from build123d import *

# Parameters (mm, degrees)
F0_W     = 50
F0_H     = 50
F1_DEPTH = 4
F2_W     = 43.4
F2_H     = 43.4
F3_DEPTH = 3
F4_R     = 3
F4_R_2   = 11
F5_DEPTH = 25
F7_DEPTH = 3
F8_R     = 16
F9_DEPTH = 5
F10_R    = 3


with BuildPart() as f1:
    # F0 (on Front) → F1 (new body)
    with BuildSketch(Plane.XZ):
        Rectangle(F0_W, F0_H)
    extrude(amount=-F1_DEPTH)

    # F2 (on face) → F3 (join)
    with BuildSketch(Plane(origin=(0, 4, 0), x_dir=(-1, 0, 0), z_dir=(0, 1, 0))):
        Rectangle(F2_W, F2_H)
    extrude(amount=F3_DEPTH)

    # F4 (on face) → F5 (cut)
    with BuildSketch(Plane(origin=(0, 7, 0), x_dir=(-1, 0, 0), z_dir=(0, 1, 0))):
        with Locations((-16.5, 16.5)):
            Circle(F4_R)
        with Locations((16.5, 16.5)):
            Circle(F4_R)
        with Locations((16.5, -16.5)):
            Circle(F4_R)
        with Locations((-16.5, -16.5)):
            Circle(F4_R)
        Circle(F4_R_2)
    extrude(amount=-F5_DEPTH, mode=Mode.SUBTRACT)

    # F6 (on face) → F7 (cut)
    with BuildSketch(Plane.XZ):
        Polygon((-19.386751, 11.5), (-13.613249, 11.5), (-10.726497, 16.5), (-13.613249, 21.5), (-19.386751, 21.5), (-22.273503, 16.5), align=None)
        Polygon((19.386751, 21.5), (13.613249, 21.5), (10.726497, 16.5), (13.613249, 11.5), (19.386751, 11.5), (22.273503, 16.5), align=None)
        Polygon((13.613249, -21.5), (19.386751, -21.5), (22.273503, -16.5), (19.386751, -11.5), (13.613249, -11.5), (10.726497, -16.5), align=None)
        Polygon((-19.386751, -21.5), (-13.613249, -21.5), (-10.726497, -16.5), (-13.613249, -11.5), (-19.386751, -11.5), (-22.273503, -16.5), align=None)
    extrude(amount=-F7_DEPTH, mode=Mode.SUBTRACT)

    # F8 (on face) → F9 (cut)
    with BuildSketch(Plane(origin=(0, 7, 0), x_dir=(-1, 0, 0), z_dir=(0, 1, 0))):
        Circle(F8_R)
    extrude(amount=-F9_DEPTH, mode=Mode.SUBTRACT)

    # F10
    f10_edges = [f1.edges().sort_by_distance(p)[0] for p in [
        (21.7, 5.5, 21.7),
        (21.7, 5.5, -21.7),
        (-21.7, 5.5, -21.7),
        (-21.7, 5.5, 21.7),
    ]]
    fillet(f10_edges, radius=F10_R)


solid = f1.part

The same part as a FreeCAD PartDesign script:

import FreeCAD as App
import Part
import Sketcher
Q = App.Units.Quantity


def edges_at(feature, points):
    """Names of the edges that pass closest to the given points."""
    edges = feature.Shape.Edges
    near = lambda p: min(range(len(edges)), key=lambda i: edges[i].distToShape(Part.Vertex(*p))[0])
    return sorted({f"Edge{near(p) + 1}" for p in points})

doc = App.newDocument("Part")
params = doc.addObject("Spreadsheet::Sheet", "Params")
for row, (alias, value) in enumerate([
    ("sketch1_width", "50 mm"),
    ("pad1_length", "4 mm"),
    ("sketch2_width", "43.4 mm"),
    ("pad2_length", "3 mm"),
    ("sketch3_diameter", "6 mm"),
    ("sketch3_diameter2", "22 mm"),
    ("pocket1_length", "25 mm"),
    ("pocket2_length", "3 mm"),
    ("sketch5_diameter", "32 mm"),
    ("pocket3_length", "5 mm"),
    ("fillet_radius", "3 mm"),
], start=1):
    params.set(f"A{row}", alias)
    params.set(f"B{row}", "=" + value)
    params.setAlias(f"B{row}", alias)

body = doc.addObject("PartDesign::Body", "Body")

# Sketch on XZ plane
sketch1 = doc.addObject("Sketcher::SketchObject", "Sketch")
body.addObject(sketch1)
sketch1.AttachmentSupport = (doc.XZ_Plane, [""])
sketch1.MapMode = "FlatFace"
sketch1.addGeometry([
    Part.LineSegment(App.Vector(-25, 25, 0), App.Vector(-25, -25, 0)),
    Part.LineSegment(App.Vector(-25, -25, 0), App.Vector(25, -25, 0)),
    Part.LineSegment(App.Vector(25, -25, 0), App.Vector(25, 25, 0)),
    Part.LineSegment(App.Vector(25, 25, 0), App.Vector(-25, 25, 0)),
], False)
sketch1.addConstraint([
    Sketcher.Constraint("Coincident", 0, 2, 1, 1),
    Sketcher.Constraint("Coincident", 1, 2, 2, 1),
    Sketcher.Constraint("Coincident", 2, 2, 3, 1),
    Sketcher.Constraint("Coincident", 3, 2, 0, 1),
    Sketcher.Constraint("Vertical", 0),
    Sketcher.Constraint("Horizontal", 1),
    Sketcher.Constraint("Vertical", 2),
    Sketcher.Constraint("Horizontal", 3),
    Sketcher.Constraint("Symmetric", 0, 2, 2, 2, -1, 1),
    Sketcher.Constraint("Equal", 3, 0),
    Sketcher.Constraint("DistanceX", 1, 1, 1, 2, Q("50 mm")),
])
sketch1.setExpression("Constraints[10]", "Params.sketch1_width")
pad1 = doc.addObject("PartDesign::Pad", "Pad")
body.addObject(pad1)
pad1.Profile = sketch1
pad1.setExpression("Length", "Params.pad1_length")
pad1.Reversed = True

# Sketch on XZ plane
sketch2 = doc.addObject("Sketcher::SketchObject", "Sketch001")
body.addObject(sketch2)
sketch2.AttachmentSupport = (doc.XZ_Plane, [""])
sketch2.MapMode = "FlatFace"
sketch2.AttachmentOffset = App.Placement(App.Vector(0, 0, -4), App.Rotation())
sketch2.addGeometry([
    Part.LineSegment(App.Vector(22, 22, 0), App.Vector(22, -22, 0)),
    Part.LineSegment(App.Vector(22, -22, 0), App.Vector(-22, -22, 0)),
    Part.LineSegment(App.Vector(-22, -22, 0), App.Vector(-22, 22, 0)),
    Part.LineSegment(App.Vector(-22, 22, 0), App.Vector(22, 22, 0)),
], False)
sketch2.addConstraint([
    Sketcher.Constraint("Coincident", 0, 2, 1, 1),
    Sketcher.Constraint("Coincident", 1, 2, 2, 1),
    Sketcher.Constraint("Coincident", 2, 2, 3, 1),
    Sketcher.Constraint("Coincident", 3, 2, 0, 1),
    Sketcher.Constraint("Vertical", 0),
    Sketcher.Constraint("Horizontal", 1),
    Sketcher.Constraint("Vertical", 2),
    Sketcher.Constraint("Horizontal", 3),
    Sketcher.Constraint("Symmetric", 0, 2, 2, 2, -1, 1),
    Sketcher.Constraint("Equal", 3, 0),
    Sketcher.Constraint("DistanceX", 1, 2, 1, 1, Q("43.4 mm")),
])
sketch2.setExpression("Constraints[10]", "Params.sketch2_width")
pad2 = doc.addObject("PartDesign::Pad", "Pad001")
body.addObject(pad2)
pad2.Profile = sketch2
pad2.setExpression("Length", "Params.pad2_length")
pad2.Reversed = True

# Sketch on XZ plane
sketch3 = doc.addObject("Sketcher::SketchObject", "Sketch002")
body.addObject(sketch3)
sketch3.AttachmentSupport = (doc.XZ_Plane, [""])
sketch3.MapMode = "FlatFace"
sketch3.AttachmentOffset = App.Placement(App.Vector(0, 0, -7), App.Rotation())
sketch3.addGeometry([
    Part.Circle(App.Vector(16.5, 16.5, 0), App.Vector(0, 0, 1), 3),  # 0
    Part.Circle(App.Vector(-16.5, 16.5, 0), App.Vector(0, 0, 1), 3),  # 1
    Part.Circle(App.Vector(-16.5, -16.5, 0), App.Vector(0, 0, 1), 3),  # 2
    Part.Circle(App.Vector(16.5, -16.5, 0), App.Vector(0, 0, 1), 3),  # 3
    Part.Circle(App.Vector(0, 0, 0), App.Vector(0, 0, 1), 11),  # 4
], False)
sketch3.addConstraint([
    Sketcher.Constraint("Coincident", 4, 3, -1, 1),
    Sketcher.Constraint("Equal", 0, 1),
    Sketcher.Constraint("Equal", 1, 2),
    Sketcher.Constraint("Equal", 2, 3),
    Sketcher.Constraint("Symmetric", 0, 3, 2, 3, -1, 1),
    Sketcher.Constraint("Symmetric", 1, 3, 3, 3, -1, 1),
    Sketcher.Constraint("Symmetric", 0, 3, 1, 3, -2),
    Sketcher.Constraint("Diameter", 0, Q("6 mm")),
    Sketcher.Constraint("Diameter", 4, Q("22 mm")),
    Sketcher.Constraint("DistanceX", 1, 3, 0, 3, Q("33 mm")),
    Sketcher.Constraint("DistanceY", 2, 3, 1, 3, Q("33 mm")),
])
sketch3.setExpression("Constraints[7]", "Params.sketch3_diameter")
sketch3.setExpression("Constraints[8]", "Params.sketch3_diameter2")
pocket1 = doc.addObject("PartDesign::Pocket", "Pocket")
body.addObject(pocket1)
pocket1.Profile = sketch3
pocket1.setExpression("Length", "Params.pocket1_length")
pocket1.Reversed = True

# Sketch on XZ plane
sketch4 = doc.addObject("Sketcher::SketchObject", "Sketch003")
body.addObject(sketch4)
sketch4.AttachmentSupport = (doc.XZ_Plane, [""])
sketch4.MapMode = "FlatFace"
sketch4.addGeometry([
    Part.LineSegment(App.Vector(-19, 12, 0), App.Vector(-14, 12, 0)),  # 0
    Part.LineSegment(App.Vector(-14, 12, 0), App.Vector(-11, 16, 0)),  # 1
    Part.LineSegment(App.Vector(-11, 16, 0), App.Vector(-14, 22, 0)),  # 2
    Part.LineSegment(App.Vector(-14, 22, 0), App.Vector(-19, 22, 0)),  # 3
    Part.LineSegment(App.Vector(-19, 22, 0), App.Vector(-22, 16, 0)),  # 4
    Part.LineSegment(App.Vector(-22, 16, 0), App.Vector(-19, 12, 0)),  # 5
    Part.LineSegment(App.Vector(19, 22, 0), App.Vector(14, 22, 0)),  # 6
    Part.LineSegment(App.Vector(14, 22, 0), App.Vector(11, 16, 0)),  # 7
    Part.LineSegment(App.Vector(11, 16, 0), App.Vector(14, 12, 0)),  # 8
    Part.LineSegment(App.Vector(14, 12, 0), App.Vector(19, 12, 0)),  # 9
    Part.LineSegment(App.Vector(19, 12, 0), App.Vector(22, 16, 0)),  # 10
    Part.LineSegment(App.Vector(22, 16, 0), App.Vector(19, 22, 0)),  # 11
    Part.LineSegment(App.Vector(14, -22, 0), App.Vector(19, -22, 0)),  # 12
    Part.LineSegment(App.Vector(19, -22, 0), App.Vector(22, -16, 0)),  # 13
    Part.LineSegment(App.Vector(22, -16, 0), App.Vector(19, -12, 0)),  # 14
    Part.LineSegment(App.Vector(19, -12, 0), App.Vector(14, -12, 0)),  # 15
    Part.LineSegment(App.Vector(14, -12, 0), App.Vector(11, -16, 0)),  # 16
    Part.LineSegment(App.Vector(11, -16, 0), App.Vector(14, -22, 0)),  # 17
    Part.LineSegment(App.Vector(-19, -22, 0), App.Vector(-14, -22, 0)),  # 18
    Part.LineSegment(App.Vector(-14, -22, 0), App.Vector(-11, -16, 0)),  # 19
    Part.LineSegment(App.Vector(-11, -16, 0), App.Vector(-14, -12, 0)),  # 20
    Part.LineSegment(App.Vector(-14, -12, 0), App.Vector(-19, -12, 0)),  # 21
    Part.LineSegment(App.Vector(-19, -12, 0), App.Vector(-22, -16, 0)),  # 22
    Part.LineSegment(App.Vector(-22, -16, 0), App.Vector(-19, -22, 0)),  # 23
], False)
sketch4.addConstraint([
    Sketcher.Constraint("Coincident", 0, 2, 1, 1),
    Sketcher.Constraint("Coincident", 1, 2, 2, 1),
    Sketcher.Constraint("Coincident", 2, 2, 3, 1),
    Sketcher.Constraint("Coincident", 3, 2, 4, 1),
    Sketcher.Constraint("Coincident", 4, 2, 5, 1),
    Sketcher.Constraint("Coincident", 5, 2, 0, 1),
    Sketcher.Constraint("Coincident", 6, 2, 7, 1),
    Sketcher.Constraint("Coincident", 7, 2, 8, 1),
    Sketcher.Constraint("Coincident", 8, 2, 9, 1),
    Sketcher.Constraint("Coincident", 9, 2, 10, 1),
    Sketcher.Constraint("Coincident", 10, 2, 11, 1),
    Sketcher.Constraint("Coincident", 11, 2, 6, 1),
    Sketcher.Constraint("Coincident", 12, 2, 13, 1),
    Sketcher.Constraint("Coincident", 13, 2, 14, 1),
    Sketcher.Constraint("Coincident", 14, 2, 15, 1),
    Sketcher.Constraint("Coincident", 15, 2, 16, 1),
    Sketcher.Constraint("Coincident", 16, 2, 17, 1),
    Sketcher.Constraint("Coincident", 17, 2, 12, 1),
    Sketcher.Constraint("Coincident", 18, 2, 19, 1),
    Sketcher.Constraint("Coincident", 19, 2, 20, 1),
    Sketcher.Constraint("Coincident", 20, 2, 21, 1),
    Sketcher.Constraint("Coincident", 21, 2, 22, 1),
    Sketcher.Constraint("Coincident", 22, 2, 23, 1),
    Sketcher.Constraint("Coincident", 23, 2, 18, 1),
    Sketcher.Constraint("Horizontal", 0),
    Sketcher.Constraint("Horizontal", 3),
    Sketcher.Constraint("Horizontal", 6),
    Sketcher.Constraint("Horizontal", 9),
    Sketcher.Constraint("Horizontal", 12),
    Sketcher.Constraint("Horizontal", 15),
    Sketcher.Constraint("Horizontal", 18),
    Sketcher.Constraint("Horizontal", 21),
    Sketcher.Constraint("Symmetric", 3, 2, 12, 2, -1, 1),
    Sketcher.Constraint("Symmetric", 4, 2, 13, 2, -1, 1),
    Sketcher.Constraint("Symmetric", 5, 2, 14, 2, -1, 1),
    Sketcher.Constraint("Symmetric", 1, 2, 16, 2, -1, 1),
    Sketcher.Constraint("Symmetric", 6, 2, 18, 2, -1, 1),
    Sketcher.Constraint("Symmetric", 7, 2, 19, 2, -1, 1),
    Sketcher.Constraint("Symmetric", 8, 2, 20, 2, -1, 1),
    Sketcher.Constraint("Symmetric", 10, 2, 22, 2, -1, 1),
    Sketcher.Constraint("Symmetric", 2, 2, 6, 2, -2),
    Sketcher.Constraint("Symmetric", 1, 2, 7, 2, -2),
    Sketcher.Constraint("Symmetric", 0, 2, 8, 2, -2),
    Sketcher.Constraint("Symmetric", 4, 2, 10, 2, -2),
    Sketcher.Constraint("Parallel", 1, 4),
    Sketcher.Constraint("Parallel", 2, 5),
    Sketcher.Constraint("Parallel", 4, 7),
    Sketcher.Constraint("Parallel", 7, 10),
    Sketcher.Constraint("Parallel", 8, 11),
    Sketcher.Constraint("Parallel", 13, 16),
    Sketcher.Constraint("Parallel", 14, 17),
    Sketcher.Constraint("Parallel", 19, 22),
    Sketcher.Constraint("Parallel", 20, 23),
    Sketcher.Constraint("Horizontal", 1, 2, 4, 2),
    Sketcher.Constraint("Vertical", 0, 2, 2, 2),
    Sketcher.Constraint("Angle", 1, Q("59.999994 deg")),
    Sketcher.Constraint("DistanceY", 0, 2, 1, 2, Q("5 mm")),
    Sketcher.Constraint("DistanceX", 3, 2, 6, 2, Q("33 mm")),
    Sketcher.Constraint("DistanceY", 12, 2, 9, 2, Q("33 mm")),
    Sketcher.Constraint("DistanceX", 0, 1, 0, 2, Q("5.773502 mm")),
])
pocket2 = doc.addObject("PartDesign::Pocket", "Pocket001")
body.addObject(pocket2)
pocket2.Profile = sketch4
pocket2.setExpression("Length", "Params.pocket2_length")

# Sketch on XZ plane
sketch5 = doc.addObject("Sketcher::SketchObject", "Sketch004")
body.addObject(sketch5)
sketch5.AttachmentSupport = (doc.XZ_Plane, [""])
sketch5.MapMode = "FlatFace"
sketch5.AttachmentOffset = App.Placement(App.Vector(0, 0, -7), App.Rotation())
sketch5.addGeometry(Part.Circle(App.Vector(0, 0, 0), App.Vector(0, 0, 1), 16), False)
sketch5.addConstraint([
    Sketcher.Constraint("Coincident", 0, 3, -1, 1),
    Sketcher.Constraint("Diameter", 0, Q("32 mm")),
])
sketch5.setExpression("Constraints[1]", "Params.sketch5_diameter")
pocket3 = doc.addObject("PartDesign::Pocket", "Pocket002")
body.addObject(pocket3)
pocket3.Profile = sketch5
pocket3.setExpression("Length", "Params.pocket3_length")
pocket3.Reversed = True
doc.recompute()

fillet = doc.addObject("PartDesign::Fillet", "Fillet")
body.addObject(fillet)
fillet.Base = (pocket3, edges_at(pocket3, [
    (21.7, 5.5, 21.7),
    (21.7, 5.5, -21.7),
    (-21.7, 5.5, -21.7),
    (-21.7, 5.5, 21.7),
]))
fillet.setExpression("Radius", "Params.fillet_radius")

doc.recompute()
